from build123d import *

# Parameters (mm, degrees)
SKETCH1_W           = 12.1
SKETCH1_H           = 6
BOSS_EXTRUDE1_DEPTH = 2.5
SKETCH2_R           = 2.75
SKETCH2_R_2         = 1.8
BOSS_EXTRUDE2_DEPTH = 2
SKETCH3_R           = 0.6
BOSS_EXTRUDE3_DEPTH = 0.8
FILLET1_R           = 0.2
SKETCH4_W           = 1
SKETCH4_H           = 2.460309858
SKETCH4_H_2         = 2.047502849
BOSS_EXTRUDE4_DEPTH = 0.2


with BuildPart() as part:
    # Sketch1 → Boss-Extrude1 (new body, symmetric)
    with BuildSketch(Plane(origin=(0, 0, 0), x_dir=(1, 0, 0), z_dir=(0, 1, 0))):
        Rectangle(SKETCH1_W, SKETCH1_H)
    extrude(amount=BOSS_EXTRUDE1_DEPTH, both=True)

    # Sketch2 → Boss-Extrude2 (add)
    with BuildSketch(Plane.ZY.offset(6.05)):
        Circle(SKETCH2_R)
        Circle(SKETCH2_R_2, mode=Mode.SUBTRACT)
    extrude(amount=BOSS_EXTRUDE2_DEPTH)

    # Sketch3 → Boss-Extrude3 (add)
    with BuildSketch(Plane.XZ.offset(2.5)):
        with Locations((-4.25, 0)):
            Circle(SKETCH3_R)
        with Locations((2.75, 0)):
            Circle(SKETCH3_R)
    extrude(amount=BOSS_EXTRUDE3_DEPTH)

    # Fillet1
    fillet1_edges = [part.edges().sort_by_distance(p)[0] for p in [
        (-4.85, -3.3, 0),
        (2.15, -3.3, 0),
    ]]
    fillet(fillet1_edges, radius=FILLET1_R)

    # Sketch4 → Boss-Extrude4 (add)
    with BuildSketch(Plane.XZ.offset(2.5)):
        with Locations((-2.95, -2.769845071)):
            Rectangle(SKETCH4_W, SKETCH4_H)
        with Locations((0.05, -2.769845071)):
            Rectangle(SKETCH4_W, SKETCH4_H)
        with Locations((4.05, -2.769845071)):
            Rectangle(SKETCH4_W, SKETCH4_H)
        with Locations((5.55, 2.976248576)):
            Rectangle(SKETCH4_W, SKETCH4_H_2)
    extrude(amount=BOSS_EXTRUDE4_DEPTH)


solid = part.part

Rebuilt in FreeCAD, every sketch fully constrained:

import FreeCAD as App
import Part
import Sketcher
Q = App.Units.Quantity


def edges_at(feature, points):
    """Names of the edges that pass closest to the given points."""
    edges = feature.Shape.Edges
    near = lambda p: min(range(len(edges)), key=lambda i: edges[i].distToShape(Part.Vertex(*p))[0])
    return sorted({f"Edge{near(p) + 1}" for p in points})

doc = App.newDocument("Part")
body = doc.addObject("PartDesign::Body", "Body")

# Sketch on XZ plane
sketch1 = body.newObject("Sketcher::SketchObject", "Sketch")
sketch1.AttachmentSupport = (doc.getObject("XZ_Plane"), [""])
sketch1.MapMode = "FlatFace"
sketch1.addGeometry(Part.LineSegment(App.Vector(-6.05, -3, 0), App.Vector(-6.05, 3, 0)), False)
sketch1.addGeometry(Part.LineSegment(App.Vector(-6.05, 3, 0), App.Vector(6.05, 3, 0)), False)
sketch1.addGeometry(Part.LineSegment(App.Vector(6.05, 3, 0), App.Vector(6.05, -3, 0)), False)
sketch1.addGeometry(Part.LineSegment(App.Vector(6.05, -3, 0), App.Vector(-6.05, -3, 0)), False)
sketch1.addConstraint(Sketcher.Constraint("Coincident", 0, 2, 1, 1))
sketch1.addConstraint(Sketcher.Constraint("Coincident", 1, 2, 2, 1))
sketch1.addConstraint(Sketcher.Constraint("Coincident", 2, 2, 3, 1))
sketch1.addConstraint(Sketcher.Constraint("Coincident", 3, 2, 0, 1))
sketch1.addConstraint(Sketcher.Constraint("Vertical", 0))
sketch1.addConstraint(Sketcher.Constraint("Horizontal", 1))
sketch1.addConstraint(Sketcher.Constraint("Vertical", 2))
sketch1.addConstraint(Sketcher.Constraint("Horizontal", 3))
sketch1.addConstraint(Sketcher.Constraint("Symmetric", 0, 2, 2, 2, -1, 1))
sketch1.addConstraint(Sketcher.Constraint("DistanceY", 0, 1, 0, 2, Q("6 mm")))
sketch1.addConstraint(Sketcher.Constraint("DistanceX", 1, 1, 1, 2, Q("12.1 mm")))
pad1 = body.newObject("PartDesign::Pad", "Pad")
pad1.Profile = sketch1
pad1.Length = 5
pad1.Midplane = True

# Sketch on YZ plane
sketch2 = body.newObject("Sketcher::SketchObject", "Sketch001")
sketch2.AttachmentSupport = (doc.getObject("YZ_Plane"), [""])
sketch2.MapMode = "FlatFace"
sketch2.AttachmentOffset = App.Placement(App.Vector(0, 0, -6.05), App.Rotation())
sketch2.addGeometry(Part.Circle(App.Vector(0, 0, 0), App.Vector(0, 0, 1), 2.75), False)
sketch2.addGeometry(Part.Circle(App.Vector(0, 0, 0), App.Vector(0, 0, 1), 1.8), False)
sketch2.addConstraint(Sketcher.Constraint("Coincident", 0, 3, -1, 1))
sketch2.addConstraint(Sketcher.Constraint("Coincident", 1, 3, -1, 1))
sketch2.addConstraint(Sketcher.Constraint("Diameter", 0, Q("5.5 mm")))
sketch2.addConstraint(Sketcher.Constraint("Diameter", 1, Q("3.6 mm")))
pad2 = body.newObject("PartDesign::Pad", "Pad001")
pad2.Profile = sketch2
pad2.Length = 2
pad2.Reversed = True

# Sketch on XZ plane
sketch3 = body.newObject("Sketcher::SketchObject", "Sketch002")
sketch3.AttachmentSupport = (doc.getObject("XZ_Plane"), [""])
sketch3.MapMode = "FlatFace"
sketch3.AttachmentOffset = App.Placement(App.Vector(0, 0, 2.5), App.Rotation())
sketch3.addGeometry(Part.Circle(App.Vector(-4.25, 0, 0), App.Vector(0, 0, 1), 0.6), False)
sketch3.addGeometry(Part.Circle(App.Vector(2.75, 0, 0), App.Vector(0, 0, 1), 0.6), False)
sketch3.addConstraint(Sketcher.Constraint("Equal", 0, 1))
sketch3.addConstraint(Sketcher.Constraint("PointOnObject", 0, 3, -1))
sketch3.addConstraint(Sketcher.Constraint("PointOnObject", 1, 3, -1))
sketch3.addConstraint(Sketcher.Constraint("Diameter", 0, Q("1.2 mm")))
sketch3.addConstraint(Sketcher.Constraint("DistanceX", 0, 3, 1, 3, Q("7 mm")))
sketch3.addConstraint(Sketcher.Constraint("DistanceX", 0, 3, -1, 1, Q("4.25 mm")))
pad3 = body.newObject("PartDesign::Pad", "Pad002")
pad3.Profile = sketch3
pad3.Length = 0.8
doc.recompute()

fillet = body.newObject("PartDesign::Fillet", "Fillet")
fillet.Base = (pad3, edges_at(pad3, [(-4.85, -3.3, 0), (2.15, -3.3, 0)]))
fillet.Radius = 0.2

# Sketch on XZ plane
sketch4 = body.newObject("Sketcher::SketchObject", "Sketch003")
sketch4.AttachmentSupport = (doc.getObject("XZ_Plane"), [""])
sketch4.MapMode = "FlatFace"
sketch4.AttachmentOffset = App.Placement(App.Vector(0, 0, 2.5), App.Rotation())
sketch4.addGeometry(Part.LineSegment(App.Vector(-3.45, -1.53969, 0), App.Vector(-3.45, -4, 0)), False)
sketch4.addGeometry(Part.LineSegment(App.Vector(-3.45, -4, 0), App.Vector(-2.45, -4, 0)), False)
sketch4.addGeometry(Part.LineSegment(App.Vector(-2.45, -4, 0), App.Vector(-2.45, -1.53969, 0)), False)
sketch4.addGeometry(Part.LineSegment(App.Vector(-2.45, -1.53969, 0), App.Vector(-3.45, -1.53969, 0)), False)
sketch4.addGeometry(Part.LineSegment(App.Vector(-0.45, -1.53969, 0), App.Vector(-0.45, -4, 0)), False)
sketch4.addGeometry(Part.LineSegment(App.Vector(-0.45, -4, 0), App.Vector(0.55, -4, 0)), False)
sketch4.addGeometry(Part.LineSegment(App.Vector(0.55, -4, 0), App.Vector(0.55, -1.53969, 0)), False)
sketch4.addGeometry(Part.LineSegment(App.Vector(0.55, -1.53969, 0), App.Vector(-0.45, -1.53969, 0)), False)
sketch4.addGeometry(Part.LineSegment(App.Vector(3.55, -1.53969, 0), App.Vector(3.55, -4, 0)), False)
sketch4.addGeometry(Part.LineSegment(App.Vector(3.55, -4, 0), App.Vector(4.55, -4, 0)), False)
sketch4.addGeometry(Part.LineSegment(App.Vector(4.55, -4, 0), App.Vector(4.55, -1.53969, 0)), False)
sketch4.addGeometry(Part.LineSegment(App.Vector(4.55, -1.53969, 0), App.Vector(3.55, -1.53969, 0)), False)
sketch4.addGeometry(Part.LineSegment(App.Vector(5.05, 4, 0), App.Vector(5.05, 1.952497, 0)), False)
sketch4.addGeometry(Part.LineSegment(App.Vector(5.05, 1.952497, 0), App.Vector(6.05, 1.952497, 0)), False)
sketch4.addGeometry(Part.LineSegment(App.Vector(6.05, 1.952497, 0), App.Vector(6.05, 4, 0)), False)
sketch4.addGeometry(Part.LineSegment(App.Vector(6.05, 4, 0), App.Vector(5.05, 4, 0)), False)
sketch4.addConstraint(Sketcher.Constraint("Coincident", 0, 2, 1, 1))
sketch4.addConstraint(Sketcher.Constraint("Coincident", 1, 2, 2, 1))
sketch4.addConstraint(Sketcher.Constraint("Coincident", 2, 2, 3, 1))
sketch4.addConstraint(Sketcher.Constraint("Coincident", 3, 2, 0, 1))
sketch4.addConstraint(Sketcher.Constraint("Coincident", 4, 2, 5, 1))
sketch4.addConstraint(Sketcher.Constraint("Coincident", 5, 2, 6, 1))
sketch4.addConstraint(Sketcher.Constraint("Coincident", 6, 2, 7, 1))
sketch4.addConstraint(Sketcher.Constraint("Coincident", 7, 2, 4, 1))
sketch4.addConstraint(Sketcher.Constraint("Coincident", 8, 2, 9, 1))
sketch4.addConstraint(Sketcher.Constraint("Coincident", 9, 2, 10, 1))
sketch4.addConstraint(Sketcher.Constraint("Coincident", 10, 2, 11, 1))
sketch4.addConstraint(Sketcher.Constraint("Coincident", 11, 2, 8, 1))
sketch4.addConstraint(Sketcher.Constraint("Coincident", 12, 2, 13, 1))
sketch4.addConstraint(Sketcher.Constraint("Coincident", 13, 2, 14, 1))
sketch4.addConstraint(Sketcher.Constraint("Coincident", 14, 2, 15, 1))
sketch4.addConstraint(Sketcher.Constraint("Coincident", 15, 2, 12, 1))
sketch4.addConstraint(Sketcher.Constraint("Vertical", 0))
sketch4.addConstraint(Sketcher.Constraint("Horizontal", 1))
sketch4.addConstraint(Sketcher.Constraint("Vertical", 2))
sketch4.addConstraint(Sketcher.Constraint("Horizontal", 3))
sketch4.addConstraint(Sketcher.Constraint("Vertical", 4))
sketch4.addConstraint(Sketcher.Constraint("Horizontal", 5))
sketch4.addConstraint(Sketcher.Constraint("Vertical", 6))
sketch4.addConstraint(Sketcher.Constraint("Horizontal", 7))
sketch4.addConstraint(Sketcher.Constraint("Vertical", 8))
sketch4.addConstraint(Sketcher.Constraint("Horizontal", 9))
sketch4.addConstraint(Sketcher.Constraint("Vertical", 10))
sketch4.addConstraint(Sketcher.Constraint("Horizontal", 11))
sketch4.addConstraint(Sketcher.Constraint("Vertical", 12))
sketch4.addConstraint(Sketcher.Constraint("Horizontal", 13))
sketch4.addConstraint(Sketcher.Constraint("Vertical", 14))
sketch4.addConstraint(Sketcher.Constraint("Horizontal", 15))
sketch4.addConstraint(Sketcher.Constraint("Horizontal", 1, 2, 4, 2))
sketch4.addConstraint(Sketcher.Constraint("Horizontal", 3, 2, 6, 2))
sketch4.addConstraint(Sketcher.Constraint("Horizontal", 5, 2, 8, 2))
sketch4.addConstraint(Sketcher.Constraint("Horizontal", 7, 2, 10, 2))
sketch4.addConstraint(Sketcher.Constraint("Equal", 3, 5))
sketch4.addConstraint(Sketcher.Constraint("Equal", 7, 9))
sketch4.addConstraint(Sketcher.Constraint("Equal", 11, 13))
sketch4.addConstraint(Sketcher.Constraint("DistanceX", 1, 1, 1, 2, Q("1 mm")))
sketch4.addConstraint(Sketcher.Constraint("DistanceY", 0, 2, -1, 1, Q("4 mm")))
sketch4.addConstraint(Sketcher.Constraint("DistanceY", -1, 1, 14, 2, Q("4 mm")))
sketch4.addConstraint(Sketcher.Constraint("DistanceX", 1, 2, 4, 2, Q("2 mm")))
sketch4.addConstraint(Sketcher.Constraint("DistanceX", 5, 2, 8, 2, Q("3 mm")))
sketch4.addConstraint(Sketcher.Constraint("DistanceX", 10, 2, 12, 2, Q("0.5 mm")))
sketch4.addConstraint(Sketcher.Constraint("DistanceX", 0, 2, -1, 1, Q("3.45 mm")))
sketch4.addConstraint(Sketcher.Constraint("DistanceY", 0, 2, 0, 1, Q("2.46031 mm")))
sketch4.addConstraint(Sketcher.Constraint("DistanceY", 12, 2, 12, 1, Q("2.047503 mm")))
pad4 = body.newObject("PartDesign::Pad", "Pad003")
pad4.Profile = sketch4
pad4.Length = 0.2

doc.recompute()
